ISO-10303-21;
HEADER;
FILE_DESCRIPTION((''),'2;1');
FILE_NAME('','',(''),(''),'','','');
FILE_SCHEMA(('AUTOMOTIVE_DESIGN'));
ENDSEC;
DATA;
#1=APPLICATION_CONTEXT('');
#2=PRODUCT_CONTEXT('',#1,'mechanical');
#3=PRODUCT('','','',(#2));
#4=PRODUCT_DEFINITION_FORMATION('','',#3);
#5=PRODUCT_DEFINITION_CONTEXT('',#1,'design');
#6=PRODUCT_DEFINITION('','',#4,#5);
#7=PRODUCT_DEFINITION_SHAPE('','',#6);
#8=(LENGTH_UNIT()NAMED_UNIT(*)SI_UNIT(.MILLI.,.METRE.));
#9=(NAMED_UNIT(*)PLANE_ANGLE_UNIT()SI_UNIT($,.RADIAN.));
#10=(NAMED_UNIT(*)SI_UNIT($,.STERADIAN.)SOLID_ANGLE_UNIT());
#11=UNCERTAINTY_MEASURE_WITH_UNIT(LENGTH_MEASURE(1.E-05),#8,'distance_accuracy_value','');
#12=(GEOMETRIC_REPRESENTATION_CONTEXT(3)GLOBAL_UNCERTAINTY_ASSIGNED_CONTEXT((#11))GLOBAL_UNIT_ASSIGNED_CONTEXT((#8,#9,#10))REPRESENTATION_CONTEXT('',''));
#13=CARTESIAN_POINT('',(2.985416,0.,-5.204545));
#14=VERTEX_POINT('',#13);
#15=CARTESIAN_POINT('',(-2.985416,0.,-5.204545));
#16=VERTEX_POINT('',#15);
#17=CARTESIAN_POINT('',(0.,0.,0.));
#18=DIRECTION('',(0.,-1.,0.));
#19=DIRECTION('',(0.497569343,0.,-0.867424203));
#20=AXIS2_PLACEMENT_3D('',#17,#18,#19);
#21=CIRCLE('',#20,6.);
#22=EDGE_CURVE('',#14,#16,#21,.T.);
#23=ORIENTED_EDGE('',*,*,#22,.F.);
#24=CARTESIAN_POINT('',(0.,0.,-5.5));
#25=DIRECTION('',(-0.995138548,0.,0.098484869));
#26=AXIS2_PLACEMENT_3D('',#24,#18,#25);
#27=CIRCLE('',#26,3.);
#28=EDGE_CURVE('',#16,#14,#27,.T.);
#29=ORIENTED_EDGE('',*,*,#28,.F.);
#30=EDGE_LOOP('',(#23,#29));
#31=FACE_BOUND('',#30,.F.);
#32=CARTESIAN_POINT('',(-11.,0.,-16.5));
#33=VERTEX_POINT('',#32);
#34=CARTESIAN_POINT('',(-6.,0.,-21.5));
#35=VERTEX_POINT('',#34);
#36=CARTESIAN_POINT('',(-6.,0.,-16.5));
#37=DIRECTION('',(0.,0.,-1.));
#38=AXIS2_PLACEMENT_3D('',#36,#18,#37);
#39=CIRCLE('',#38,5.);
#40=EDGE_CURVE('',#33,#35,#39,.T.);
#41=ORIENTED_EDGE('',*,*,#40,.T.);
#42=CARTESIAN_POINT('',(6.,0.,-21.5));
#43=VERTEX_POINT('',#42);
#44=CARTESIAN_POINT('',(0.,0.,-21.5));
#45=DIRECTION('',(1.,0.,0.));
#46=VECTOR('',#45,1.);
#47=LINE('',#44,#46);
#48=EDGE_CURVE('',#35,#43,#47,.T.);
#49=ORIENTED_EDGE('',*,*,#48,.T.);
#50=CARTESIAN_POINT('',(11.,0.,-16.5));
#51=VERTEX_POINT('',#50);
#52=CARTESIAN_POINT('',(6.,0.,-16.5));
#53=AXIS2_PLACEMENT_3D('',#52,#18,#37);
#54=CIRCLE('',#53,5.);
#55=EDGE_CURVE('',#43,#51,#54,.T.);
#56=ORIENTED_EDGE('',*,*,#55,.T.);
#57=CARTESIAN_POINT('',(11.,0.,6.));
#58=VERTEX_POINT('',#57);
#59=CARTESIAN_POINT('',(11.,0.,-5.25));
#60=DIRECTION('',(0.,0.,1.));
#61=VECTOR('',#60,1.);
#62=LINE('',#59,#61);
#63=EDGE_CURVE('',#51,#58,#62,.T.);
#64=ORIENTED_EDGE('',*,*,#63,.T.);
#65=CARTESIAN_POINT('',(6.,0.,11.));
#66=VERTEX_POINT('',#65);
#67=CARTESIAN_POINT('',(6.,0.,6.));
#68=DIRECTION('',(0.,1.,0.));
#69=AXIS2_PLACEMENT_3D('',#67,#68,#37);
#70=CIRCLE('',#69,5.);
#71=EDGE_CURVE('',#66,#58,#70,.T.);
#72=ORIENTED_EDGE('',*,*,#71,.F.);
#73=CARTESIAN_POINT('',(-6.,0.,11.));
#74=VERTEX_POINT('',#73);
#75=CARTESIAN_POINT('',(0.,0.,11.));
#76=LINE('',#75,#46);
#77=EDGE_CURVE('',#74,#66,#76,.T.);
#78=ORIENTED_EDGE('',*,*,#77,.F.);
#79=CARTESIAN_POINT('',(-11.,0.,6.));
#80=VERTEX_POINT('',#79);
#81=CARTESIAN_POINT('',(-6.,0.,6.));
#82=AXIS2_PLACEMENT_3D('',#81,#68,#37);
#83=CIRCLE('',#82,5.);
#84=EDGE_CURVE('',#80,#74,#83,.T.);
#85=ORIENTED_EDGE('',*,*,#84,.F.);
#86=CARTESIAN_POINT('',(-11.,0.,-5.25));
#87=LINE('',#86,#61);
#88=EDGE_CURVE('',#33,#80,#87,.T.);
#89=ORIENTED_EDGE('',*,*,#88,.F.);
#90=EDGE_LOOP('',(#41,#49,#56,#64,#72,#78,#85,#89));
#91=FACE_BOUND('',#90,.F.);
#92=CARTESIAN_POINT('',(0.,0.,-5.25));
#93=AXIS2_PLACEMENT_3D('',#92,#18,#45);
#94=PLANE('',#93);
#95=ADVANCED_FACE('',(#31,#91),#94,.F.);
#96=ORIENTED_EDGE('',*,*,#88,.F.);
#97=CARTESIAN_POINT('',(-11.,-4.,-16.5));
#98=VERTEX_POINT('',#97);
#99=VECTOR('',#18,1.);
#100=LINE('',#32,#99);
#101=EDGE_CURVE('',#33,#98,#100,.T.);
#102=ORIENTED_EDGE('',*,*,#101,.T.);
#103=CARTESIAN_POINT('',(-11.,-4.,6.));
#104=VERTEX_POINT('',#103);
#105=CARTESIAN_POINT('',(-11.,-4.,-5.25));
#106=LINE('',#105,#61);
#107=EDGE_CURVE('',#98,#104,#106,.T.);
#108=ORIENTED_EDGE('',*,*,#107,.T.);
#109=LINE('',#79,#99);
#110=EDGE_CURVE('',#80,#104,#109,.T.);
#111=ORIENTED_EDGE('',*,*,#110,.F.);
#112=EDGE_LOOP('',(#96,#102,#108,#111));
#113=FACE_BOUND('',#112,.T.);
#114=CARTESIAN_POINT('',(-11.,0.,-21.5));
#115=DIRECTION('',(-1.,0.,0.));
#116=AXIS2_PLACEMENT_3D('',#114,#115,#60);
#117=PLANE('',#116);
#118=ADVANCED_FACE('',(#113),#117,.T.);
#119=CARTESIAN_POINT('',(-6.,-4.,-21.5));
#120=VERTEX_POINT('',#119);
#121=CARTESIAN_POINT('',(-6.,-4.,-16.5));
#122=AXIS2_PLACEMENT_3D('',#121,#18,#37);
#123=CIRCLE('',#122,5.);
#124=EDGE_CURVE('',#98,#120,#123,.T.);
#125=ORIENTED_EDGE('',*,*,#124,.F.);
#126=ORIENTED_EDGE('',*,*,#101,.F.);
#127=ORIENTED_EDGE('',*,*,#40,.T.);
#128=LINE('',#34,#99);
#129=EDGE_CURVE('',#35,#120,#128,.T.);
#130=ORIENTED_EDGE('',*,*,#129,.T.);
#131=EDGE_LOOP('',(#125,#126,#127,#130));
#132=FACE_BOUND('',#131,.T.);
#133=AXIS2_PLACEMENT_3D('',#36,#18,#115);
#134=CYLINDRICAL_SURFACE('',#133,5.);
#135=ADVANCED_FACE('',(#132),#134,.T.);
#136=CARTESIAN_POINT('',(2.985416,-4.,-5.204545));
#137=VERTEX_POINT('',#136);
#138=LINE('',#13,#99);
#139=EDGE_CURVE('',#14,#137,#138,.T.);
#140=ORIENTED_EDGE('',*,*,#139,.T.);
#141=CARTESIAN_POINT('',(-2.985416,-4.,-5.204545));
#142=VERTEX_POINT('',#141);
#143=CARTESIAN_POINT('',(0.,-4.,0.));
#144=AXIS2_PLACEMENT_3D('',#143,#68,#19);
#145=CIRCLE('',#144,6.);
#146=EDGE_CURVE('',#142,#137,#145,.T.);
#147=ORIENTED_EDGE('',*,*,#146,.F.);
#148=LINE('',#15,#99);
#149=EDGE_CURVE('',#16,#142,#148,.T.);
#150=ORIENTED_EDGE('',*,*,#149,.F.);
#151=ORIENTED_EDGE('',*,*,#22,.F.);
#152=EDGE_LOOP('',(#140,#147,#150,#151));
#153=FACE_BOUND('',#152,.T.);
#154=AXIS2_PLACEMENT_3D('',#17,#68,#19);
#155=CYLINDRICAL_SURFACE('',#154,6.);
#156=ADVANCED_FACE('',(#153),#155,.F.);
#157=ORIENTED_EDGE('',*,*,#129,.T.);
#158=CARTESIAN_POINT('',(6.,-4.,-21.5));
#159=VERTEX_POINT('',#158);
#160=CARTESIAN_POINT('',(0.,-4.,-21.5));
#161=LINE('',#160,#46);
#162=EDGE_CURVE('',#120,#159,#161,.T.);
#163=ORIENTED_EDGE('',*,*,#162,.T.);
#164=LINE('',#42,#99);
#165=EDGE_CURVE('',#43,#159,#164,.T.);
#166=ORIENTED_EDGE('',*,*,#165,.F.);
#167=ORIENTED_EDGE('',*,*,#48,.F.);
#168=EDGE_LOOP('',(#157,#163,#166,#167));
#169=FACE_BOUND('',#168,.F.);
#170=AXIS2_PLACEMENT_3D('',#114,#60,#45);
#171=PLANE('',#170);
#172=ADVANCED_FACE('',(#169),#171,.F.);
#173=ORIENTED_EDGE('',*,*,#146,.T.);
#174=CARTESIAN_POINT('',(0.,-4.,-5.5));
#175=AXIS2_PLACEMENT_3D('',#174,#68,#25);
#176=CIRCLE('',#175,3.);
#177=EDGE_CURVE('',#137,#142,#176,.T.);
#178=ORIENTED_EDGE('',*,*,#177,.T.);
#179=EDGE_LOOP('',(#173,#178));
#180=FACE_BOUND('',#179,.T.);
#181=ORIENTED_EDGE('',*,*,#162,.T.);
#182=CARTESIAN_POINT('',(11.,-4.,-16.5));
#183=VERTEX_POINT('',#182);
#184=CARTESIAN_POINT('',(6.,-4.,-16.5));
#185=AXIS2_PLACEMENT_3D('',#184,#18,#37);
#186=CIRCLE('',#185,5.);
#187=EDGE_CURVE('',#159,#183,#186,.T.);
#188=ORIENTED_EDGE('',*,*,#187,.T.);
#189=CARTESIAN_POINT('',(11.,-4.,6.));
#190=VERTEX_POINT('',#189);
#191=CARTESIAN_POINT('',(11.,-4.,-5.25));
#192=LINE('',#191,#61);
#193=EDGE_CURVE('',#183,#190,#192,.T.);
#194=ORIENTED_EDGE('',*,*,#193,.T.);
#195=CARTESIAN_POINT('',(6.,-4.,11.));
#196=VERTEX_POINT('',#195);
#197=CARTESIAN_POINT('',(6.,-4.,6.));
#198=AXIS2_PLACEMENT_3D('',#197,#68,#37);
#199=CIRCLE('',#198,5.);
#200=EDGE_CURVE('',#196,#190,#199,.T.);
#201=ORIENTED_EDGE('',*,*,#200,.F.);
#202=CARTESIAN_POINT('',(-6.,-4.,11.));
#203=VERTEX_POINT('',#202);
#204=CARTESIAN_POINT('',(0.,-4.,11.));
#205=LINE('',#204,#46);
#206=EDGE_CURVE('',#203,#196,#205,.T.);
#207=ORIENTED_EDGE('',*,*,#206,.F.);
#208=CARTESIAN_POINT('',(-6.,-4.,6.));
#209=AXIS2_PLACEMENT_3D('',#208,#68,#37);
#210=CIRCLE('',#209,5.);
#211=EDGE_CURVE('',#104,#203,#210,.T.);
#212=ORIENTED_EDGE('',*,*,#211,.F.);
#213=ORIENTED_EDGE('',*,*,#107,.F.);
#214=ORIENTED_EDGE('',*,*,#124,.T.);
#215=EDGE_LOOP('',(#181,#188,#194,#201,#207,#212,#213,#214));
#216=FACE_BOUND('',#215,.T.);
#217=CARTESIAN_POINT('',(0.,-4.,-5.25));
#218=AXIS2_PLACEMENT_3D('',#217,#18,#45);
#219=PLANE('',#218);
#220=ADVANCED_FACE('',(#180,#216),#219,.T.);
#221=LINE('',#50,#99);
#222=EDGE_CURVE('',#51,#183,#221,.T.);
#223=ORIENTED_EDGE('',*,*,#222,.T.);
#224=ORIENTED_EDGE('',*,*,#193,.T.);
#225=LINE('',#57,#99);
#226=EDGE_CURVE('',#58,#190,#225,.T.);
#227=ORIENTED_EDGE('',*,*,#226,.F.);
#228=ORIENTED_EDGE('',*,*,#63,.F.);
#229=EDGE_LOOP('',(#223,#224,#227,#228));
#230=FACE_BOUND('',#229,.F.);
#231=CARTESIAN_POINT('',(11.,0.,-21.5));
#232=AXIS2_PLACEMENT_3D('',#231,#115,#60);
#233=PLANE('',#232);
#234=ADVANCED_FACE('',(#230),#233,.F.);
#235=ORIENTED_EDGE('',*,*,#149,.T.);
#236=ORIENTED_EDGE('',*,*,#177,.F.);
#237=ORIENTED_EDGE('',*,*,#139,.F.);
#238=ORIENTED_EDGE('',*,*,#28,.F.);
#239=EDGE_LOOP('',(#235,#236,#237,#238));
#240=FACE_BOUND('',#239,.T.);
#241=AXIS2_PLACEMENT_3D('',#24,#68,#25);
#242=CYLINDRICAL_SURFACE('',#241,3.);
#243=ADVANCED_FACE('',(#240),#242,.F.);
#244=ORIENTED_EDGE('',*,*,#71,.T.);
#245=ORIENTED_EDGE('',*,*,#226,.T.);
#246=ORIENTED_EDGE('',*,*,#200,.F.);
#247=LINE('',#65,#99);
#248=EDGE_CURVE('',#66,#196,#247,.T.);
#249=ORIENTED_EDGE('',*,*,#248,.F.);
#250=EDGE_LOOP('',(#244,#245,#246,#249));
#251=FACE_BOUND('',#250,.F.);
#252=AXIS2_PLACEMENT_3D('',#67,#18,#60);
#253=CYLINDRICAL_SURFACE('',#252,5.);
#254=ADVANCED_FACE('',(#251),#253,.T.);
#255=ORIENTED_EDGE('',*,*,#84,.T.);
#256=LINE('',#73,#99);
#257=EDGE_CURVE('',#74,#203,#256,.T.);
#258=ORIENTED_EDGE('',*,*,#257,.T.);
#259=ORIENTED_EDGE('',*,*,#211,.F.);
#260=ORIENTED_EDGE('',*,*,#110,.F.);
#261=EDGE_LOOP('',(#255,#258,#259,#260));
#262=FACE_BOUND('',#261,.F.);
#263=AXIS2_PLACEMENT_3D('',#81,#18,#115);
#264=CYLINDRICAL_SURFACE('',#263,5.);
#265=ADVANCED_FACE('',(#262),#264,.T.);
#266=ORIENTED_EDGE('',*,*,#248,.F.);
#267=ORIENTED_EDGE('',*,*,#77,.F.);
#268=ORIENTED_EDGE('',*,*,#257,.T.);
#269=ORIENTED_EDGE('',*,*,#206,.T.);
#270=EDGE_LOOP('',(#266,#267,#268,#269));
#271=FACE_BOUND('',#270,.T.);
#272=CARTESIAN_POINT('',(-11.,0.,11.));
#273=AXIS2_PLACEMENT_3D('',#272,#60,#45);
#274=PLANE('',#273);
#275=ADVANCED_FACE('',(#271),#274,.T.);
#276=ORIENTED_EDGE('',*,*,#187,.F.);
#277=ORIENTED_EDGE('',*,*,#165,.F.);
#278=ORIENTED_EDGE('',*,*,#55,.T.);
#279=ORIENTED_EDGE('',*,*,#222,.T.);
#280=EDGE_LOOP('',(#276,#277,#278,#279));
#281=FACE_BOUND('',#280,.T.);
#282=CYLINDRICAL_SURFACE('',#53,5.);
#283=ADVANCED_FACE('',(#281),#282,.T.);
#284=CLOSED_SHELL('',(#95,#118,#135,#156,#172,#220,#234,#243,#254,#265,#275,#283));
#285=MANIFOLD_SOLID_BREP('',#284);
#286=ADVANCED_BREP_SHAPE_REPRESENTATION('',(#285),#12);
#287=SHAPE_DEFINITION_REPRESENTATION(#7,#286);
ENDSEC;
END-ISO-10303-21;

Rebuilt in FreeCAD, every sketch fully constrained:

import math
import FreeCAD as App
import Part
import Sketcher
from FreeCAD import Vector


def edges_at(feature, points):
    """Names of the edges that pass closest to the given points."""
    edges = feature.Shape.Edges
    near = lambda p: min(range(len(edges)), key=lambda i: edges[i].distToShape(Part.Vertex(*p))[0])
    return sorted({f"Edge{near(p) + 1}" for p in points})

doc = App.newDocument("Part")
params = doc.addObject("Spreadsheet::Sheet", "Params")
for row, (alias, value) in enumerate([
    ("sketch1_width", "22 mm"),
    ("sketch1_height", "32.5 mm"),
    ("pad1_length", "4 mm"),
    ("sketch2_radius", "3 mm"),
    ("sketch2_radius2", "6 mm"),
    ("fillet_radius", "5 mm"),
], start=1):
    params.set(f"A{row}", alias)
    params.set(f"B{row}", "=" + value)
    params.setAlias(f"B{row}", alias)

body = doc.addObject("PartDesign::Body", "Body")

# Sketch on XZ plane
sketch1 = doc.addObject("Sketcher::SketchObject", "Sketch")
body.addObject(sketch1)
sketch1.AttachmentSupport = (doc.XZ_Plane, [""])
sketch1.MapMode = "FlatFace"
sketch1.addGeometry(Part.LineSegment(Vector(-11, 11, 0), Vector(-11, -22, 0)), False)
sketch1.addGeometry(Part.LineSegment(Vector(-11, -22, 0), Vector(11, -22, 0)), False)
sketch1.addGeometry(Part.LineSegment(Vector(11, -22, 0), Vector(11, 11, 0)), False)
sketch1.addGeometry(Part.LineSegment(Vector(11, 11, 0), Vector(-11, 11, 0)), False)
sketch1.addConstraint(Sketcher.Constraint("Coincident", 0, 2, 1, 1))
sketch1.addConstraint(Sketcher.Constraint("Coincident", 1, 2, 2, 1))
sketch1.addConstraint(Sketcher.Constraint("Coincident", 2, 2, 3, 1))
sketch1.addConstraint(Sketcher.Constraint("Coincident", 3, 2, 0, 1))
sketch1.addConstraint(Sketcher.Constraint("Vertical", 0))
sketch1.addConstraint(Sketcher.Constraint("Horizontal", 1))
sketch1.addConstraint(Sketcher.Constraint("Vertical", 2))
sketch1.addConstraint(Sketcher.Constraint("Horizontal", 3))
sketch1.addConstraint(Sketcher.Constraint("DistanceX", 1, 1, 1, 2, 22.0))
sketch1.addConstraint(Sketcher.Constraint("DistanceY", 0, 2, 0, 1, 32.5))
sketch1.addConstraint(Sketcher.Constraint("DistanceX", 0, 2, -1, 1, 11.0))
sketch1.addConstraint(Sketcher.Constraint("DistanceY", -1, 1, 2, 2, 11.0))
sketch1.setExpression("Constraints[8]", "Params.sketch1_width")
sketch1.setExpression("Constraints[9]", "Params.sketch1_height")
pad1 = doc.addObject("PartDesign::Pad", "Pad")
body.addObject(pad1)
pad1.Profile = sketch1
pad1.setExpression("Length", "Params.pad1_length")

# Sketch on XZ plane
sketch2 = doc.addObject("Sketcher::SketchObject", "Sketch001")
body.addObject(sketch2)
sketch2.AttachmentSupport = (doc.XZ_Plane, [""])
sketch2.MapMode = "FlatFace"
sketch2.addGeometry(Part.ArcOfCircle(Part.Circle(Vector(0, -5.5, 0), Vector(0, 0, 1), 3), math.radians(174), math.radians(366)), False)
sketch2.addGeometry(Part.ArcOfCircle(Part.Circle(Vector(0, 0, 0), Vector(0, 0, 1), 6), math.radians(-60), math.radians(240)), False)
sketch2.addConstraint(Sketcher.Constraint("Coincident", 0, 1, 1, 2))
sketch2.addConstraint(Sketcher.Constraint("Coincident", 1, 1, 0, 2))
sketch2.addConstraint(Sketcher.Constraint("Coincident", 1, 3, -1, 1))
sketch2.addConstraint(Sketcher.Constraint("PointOnObject", 0, 3, -2))
sketch2.addConstraint(Sketcher.Constraint("Radius", 0, 3.0))
sketch2.addConstraint(Sketcher.Constraint("Radius", 1, 6.0))
sketch2.addConstraint(Sketcher.Constraint("DistanceY", 0, 3, -1, 1, 5.5))
sketch2.setExpression("Constraints[4]", "Params.sketch2_radius")
sketch2.setExpression("Constraints[5]", "Params.sketch2_radius2")
pocket1 = doc.addObject("PartDesign::Pocket", "Pocket")
body.addObject(pocket1)
pocket1.Profile = sketch2
pocket1.Type = "ThroughAll"
pocket1.Reversed = True
doc.recompute()

fillet = doc.addObject("PartDesign::Fillet", "Fillet")
body.addObject(fillet)
fillet.Base = (pocket1, edges_at(pocket1, [
    (11, -2, 11),
    (-11, -2, 11),
    (-11, -2, -21.5),
    (11, -2, -21.5),
]))
fillet.setExpression("Radius", "Params.fillet_radius")

doc.recompute()
